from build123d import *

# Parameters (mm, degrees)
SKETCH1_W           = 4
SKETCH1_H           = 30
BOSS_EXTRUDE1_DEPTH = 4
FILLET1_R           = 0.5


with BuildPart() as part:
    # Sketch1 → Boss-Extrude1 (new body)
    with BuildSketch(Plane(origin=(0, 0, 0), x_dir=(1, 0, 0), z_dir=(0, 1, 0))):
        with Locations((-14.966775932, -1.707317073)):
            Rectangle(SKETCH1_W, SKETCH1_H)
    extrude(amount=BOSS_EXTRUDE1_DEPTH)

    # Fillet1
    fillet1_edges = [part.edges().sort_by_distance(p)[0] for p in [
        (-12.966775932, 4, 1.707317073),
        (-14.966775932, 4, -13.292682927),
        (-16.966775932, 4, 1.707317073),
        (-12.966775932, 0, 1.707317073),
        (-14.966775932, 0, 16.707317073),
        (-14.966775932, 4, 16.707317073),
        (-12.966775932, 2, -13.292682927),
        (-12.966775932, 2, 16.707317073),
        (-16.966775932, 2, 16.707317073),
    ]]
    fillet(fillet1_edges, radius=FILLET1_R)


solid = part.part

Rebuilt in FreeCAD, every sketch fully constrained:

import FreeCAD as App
import Part
import Sketcher


def edges_at(feature, points):
    """Names of the edges that pass closest to the given points."""
    edges = feature.Shape.Edges
    near = lambda p: min(range(len(edges)), key=lambda i: edges[i].distToShape(Part.Vertex(*p))[0])
    return sorted({f"Edge{near(p) + 1}" for p in points})


def add_polygon(sketch, points):
    """Adds a closed chain of lines whose ends are joined by coincident constraints."""
    first, n = sketch.GeometryCount, len(points)
    for a, b in zip(points, points[1:] + points[:1]):
        sketch.addGeometry(Part.LineSegment(App.Vector(*a, 0), App.Vector(*b, 0)), False)
    for i in range(n):
        sketch.addConstraint(Sketcher.Constraint("Coincident", first + i, 2, first + (i + 1) % n, 1))

doc = App.newDocument("Part")
body = doc.addObject("PartDesign::Body", "Body")

# Sketch on XZ plane
sketch1 = doc.addObject("Sketcher::SketchObject", "Sketch")
body.addObject(sketch1)
sketch1.AttachmentSupport = (doc.XZ_Plane, [""])
sketch1.MapMode = "FlatFace"
add_polygon(sketch1, [(-17, -13.3), (-17, 16.7), (-13, 16.7), (-13, -13.3)])  # lines 0-3
sketch1.addConstraint([
    Sketcher.Constraint("Vertical", 0),
    Sketcher.Constraint("Horizontal", 1),
    Sketcher.Constraint("Vertical", 2),
    Sketcher.Constraint("Horizontal", 3),
    Sketcher.Constraint("DistanceX", 1, 1, 1, 2, 4.0),
    Sketcher.Constraint("DistanceY", 0, 1, 0, 2, 30.0),
    Sketcher.Constraint("DistanceX", 0, 2, -1, 1, 16.966776),
    Sketcher.Constraint("DistanceY", -1, 1, 0, 2, 16.707317),
])
pad1 = doc.addObject("PartDesign::Pad", "Pad")
body.addObject(pad1)
pad1.Profile = sketch1
pad1.Length = 4
pad1.Reversed = True
doc.recompute()

fillet = doc.addObject("PartDesign::Fillet", "Fillet")
body.addObject(fillet)
fillet.Base = (pad1, edges_at(pad1, [
    (-12.967, 4, 1.707),
    (-14.967, 4, -13.293),
    (-16.967, 4, 1.707),
    (-12.967, 0, 1.707),
    (-14.967, 0, 16.707),
    (-14.967, 4, 16.707),
    (-12.967, 2, -13.293),
    (-12.967, 2, 16.707),
    (-16.967, 2, 16.707),
]))
fillet.Radius = 0.5

doc.recompute()
